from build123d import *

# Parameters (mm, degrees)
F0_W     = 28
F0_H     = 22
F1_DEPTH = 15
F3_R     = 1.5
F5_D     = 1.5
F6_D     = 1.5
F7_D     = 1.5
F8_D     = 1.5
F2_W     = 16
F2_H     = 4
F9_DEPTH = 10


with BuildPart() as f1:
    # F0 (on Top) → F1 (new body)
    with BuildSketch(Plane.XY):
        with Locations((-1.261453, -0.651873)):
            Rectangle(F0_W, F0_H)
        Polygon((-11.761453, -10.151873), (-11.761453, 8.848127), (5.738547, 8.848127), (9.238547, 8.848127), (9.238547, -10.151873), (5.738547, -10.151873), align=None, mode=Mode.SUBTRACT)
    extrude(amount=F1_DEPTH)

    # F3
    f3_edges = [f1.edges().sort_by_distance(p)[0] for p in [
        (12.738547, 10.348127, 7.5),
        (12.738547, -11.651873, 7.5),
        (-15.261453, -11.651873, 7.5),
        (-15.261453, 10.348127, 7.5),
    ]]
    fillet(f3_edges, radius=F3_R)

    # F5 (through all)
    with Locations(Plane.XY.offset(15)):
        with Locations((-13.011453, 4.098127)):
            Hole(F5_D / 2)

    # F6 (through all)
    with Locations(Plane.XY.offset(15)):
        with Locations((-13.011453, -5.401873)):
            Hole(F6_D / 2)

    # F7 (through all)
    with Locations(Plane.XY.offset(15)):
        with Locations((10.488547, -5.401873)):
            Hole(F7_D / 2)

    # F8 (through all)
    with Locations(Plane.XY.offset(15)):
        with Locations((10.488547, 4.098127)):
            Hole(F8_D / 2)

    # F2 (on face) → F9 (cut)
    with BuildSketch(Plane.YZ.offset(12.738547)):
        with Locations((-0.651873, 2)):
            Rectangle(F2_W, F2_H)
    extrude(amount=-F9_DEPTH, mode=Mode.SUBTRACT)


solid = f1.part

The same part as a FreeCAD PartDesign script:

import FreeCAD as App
import Part
import Sketcher
from FreeCAD import Vector
Q = App.Units.Quantity


def edges_at(feature, points):
    """Names of the edges that pass closest to the given points."""
    edges = feature.Shape.Edges
    near = lambda p: min(range(len(edges)), key=lambda i: edges[i].distToShape(Part.Vertex(*p))[0])
    return sorted({f"Edge{near(p) + 1}" for p in points})

doc = App.newDocument("Part")
body = doc.addObject("PartDesign::Body", "Body")

sketch1 = doc.addObject("Sketcher::SketchObject", "Sketch")
body.addObject(sketch1)
sketch1.AttachmentSupport = (doc.XY_Plane, [""])
sketch1.MapMode = "FlatFace"
sketch1.addGeometry([
    Part.LineSegment(Vector(-15, 10, 0), Vector(-15, -12, 0)),
    Part.LineSegment(Vector(-15, -12, 0), Vector(13, -12, 0)),
    Part.LineSegment(Vector(13, -12, 0), Vector(13, 10, 0)),
    Part.LineSegment(Vector(13, 10, 0), Vector(-15, 10, 0)),
    Part.LineSegment(Vector(9, -10, 0), Vector(-12, -10, 0)),
    Part.LineSegment(Vector(-12, -10, 0), Vector(-12, 9, 0)),
    Part.LineSegment(Vector(-12, 9, 0), Vector(9, 9, 0)),
    Part.LineSegment(Vector(9, 9, 0), Vector(9, -10, 0)),
], False)
sketch1.addConstraint([
    Sketcher.Constraint("Coincident", 0, 2, 1, 1),
    Sketcher.Constraint("Coincident", 1, 2, 2, 1),
    Sketcher.Constraint("Coincident", 2, 2, 3, 1),
    Sketcher.Constraint("Coincident", 3, 2, 0, 1),
    Sketcher.Constraint("Coincident", 4, 2, 5, 1),
    Sketcher.Constraint("Coincident", 5, 2, 6, 1),
    Sketcher.Constraint("Coincident", 6, 2, 7, 1),
    Sketcher.Constraint("Coincident", 7, 2, 4, 1),
    Sketcher.Constraint("Vertical", 0),
    Sketcher.Constraint("Horizontal", 1),
    Sketcher.Constraint("Vertical", 2),
    Sketcher.Constraint("Horizontal", 3),
    Sketcher.Constraint("Horizontal", 4),
    Sketcher.Constraint("Vertical", 5),
    Sketcher.Constraint("Horizontal", 6),
    Sketcher.Constraint("Vertical", 7),
    Sketcher.Constraint("DistanceX", 1, 1, 1, 2, Q("28 mm")),
    Sketcher.Constraint("DistanceX", 4, 2, 4, 1, Q("21 mm")),
    Sketcher.Constraint("DistanceY", 0, 2, 0, 1, Q("22 mm")),
    Sketcher.Constraint("DistanceY", 5, 1, 5, 2, Q("19 mm")),
    Sketcher.Constraint("DistanceX", 0, 2, 4, 2, Q("3.5 mm")),
    Sketcher.Constraint("DistanceY", 0, 2, 4, 2, Q("1.5 mm")),
    Sketcher.Constraint("DistanceX", 0, 2, -1, 1, Q("15.261453 mm")),
    Sketcher.Constraint("DistanceY", 0, 2, -1, 1, Q("11.651873 mm")),
])
pad1 = doc.addObject("PartDesign::Pad", "Pad")
body.addObject(pad1)
pad1.Profile = sketch1
pad1.Length = 15
doc.recompute()

fillet = doc.addObject("PartDesign::Fillet", "Fillet")
body.addObject(fillet)
fillet.Base = (pad1, edges_at(pad1, [
    (12.739, 10.348, 7.5),
    (12.739, -11.652, 7.5),
    (-15.261, -11.652, 7.5),
    (-15.261, 10.348, 7.5),
]))
fillet.Radius = 1.5

sketch2 = doc.addObject("Sketcher::SketchObject", "Sketch001")
body.addObject(sketch2)
sketch2.AttachmentSupport = (doc.XY_Plane, [""])
sketch2.MapMode = "FlatFace"
sketch2.AttachmentOffset = App.Placement(Vector(0, 0, 15), App.Rotation())
sketch2.addGeometry(Part.Circle(Vector(-13, 4.1, 0), Vector(0, 0, 1), 0.8), False)
sketch2.addConstraint([
    Sketcher.Constraint("Diameter", 0, Q("1.5 mm")),
    Sketcher.Constraint("DistanceX", 0, 3, -1, 1, Q("13.011453 mm")),
    Sketcher.Constraint("DistanceY", -1, 1, 0, 3, Q("4.098127 mm")),
])
doc.recompute()
hole = doc.addObject("PartDesign::Hole", "Hole")
body.addObject(hole)
hole.Profile = sketch2
hole.ThreadType = "None"
hole.Diameter = 1.5
hole.DepthType = "ThroughAll"

sketch3 = doc.addObject("Sketcher::SketchObject", "Sketch002")
body.addObject(sketch3)
sketch3.AttachmentSupport = (doc.XY_Plane, [""])
sketch3.MapMode = "FlatFace"
sketch3.AttachmentOffset = App.Placement(Vector(0, 0, 15), App.Rotation())
sketch3.addGeometry(Part.Circle(Vector(-13, -5.4, 0), Vector(0, 0, 1), 0.8), False)
sketch3.addConstraint([
    Sketcher.Constraint("Diameter", 0, Q("1.5 mm")),
    Sketcher.Constraint("DistanceX", 0, 3, -1, 1, Q("13.011453 mm")),
    Sketcher.Constraint("DistanceY", 0, 3, -1, 1, Q("5.401873 mm")),
])
doc.recompute()
hole2 = doc.addObject("PartDesign::Hole", "Hole001")
body.addObject(hole2)
hole2.Profile = sketch3
hole2.ThreadType = "None"
hole2.Diameter = 1.5
hole2.DepthType = "ThroughAll"

sketch4 = doc.addObject("Sketcher::SketchObject", "Sketch003")
body.addObject(sketch4)
sketch4.AttachmentSupport = (doc.XY_Plane, [""])
sketch4.MapMode = "FlatFace"
sketch4.AttachmentOffset = App.Placement(Vector(0, 0, 15), App.Rotation())
sketch4.addGeometry(Part.Circle(Vector(10.5, -5.4, 0), Vector(0, 0, 1), 0.8), False)
sketch4.addConstraint([
    Sketcher.Constraint("Diameter", 0, Q("1.5 mm")),
    Sketcher.Constraint("DistanceX", -1, 1, 0, 3, Q("10.488547 mm")),
    Sketcher.Constraint("DistanceY", 0, 3, -1, 1, Q("5.401873 mm")),
])
doc.recompute()
hole3 = doc.addObject("PartDesign::Hole", "Hole002")
body.addObject(hole3)
hole3.Profile = sketch4
hole3.ThreadType = "None"
hole3.Diameter = 1.5
hole3.DepthType = "ThroughAll"

sketch5 = doc.addObject("Sketcher::SketchObject", "Sketch004")
body.addObject(sketch5)
sketch5.AttachmentSupport = (doc.XY_Plane, [""])
sketch5.MapMode = "FlatFace"
sketch5.AttachmentOffset = App.Placement(Vector(0, 0, 15), App.Rotation())
sketch5.addGeometry(Part.Circle(Vector(10.5, 4.1, 0), Vector(0, 0, 1), 0.8), False)
sketch5.addConstraint([
    Sketcher.Constraint("Diameter", 0, Q("1.5 mm")),
    Sketcher.Constraint("DistanceX", -1, 1, 0, 3, Q("10.488547 mm")),
    Sketcher.Constraint("DistanceY", -1, 1, 0, 3, Q("4.098127 mm")),
])
doc.recompute()
hole4 = doc.addObject("PartDesign::Hole", "Hole003")
body.addObject(hole4)
hole4.Profile = sketch5
hole4.ThreadType = "None"
hole4.Diameter = 1.5
hole4.DepthType = "ThroughAll"

sketch6 = doc.addObject("Sketcher::SketchObject", "Sketch005")
body.addObject(sketch6)
sketch6.AttachmentSupport = (doc.YZ_Plane, [""])
sketch6.MapMode = "FlatFace"
sketch6.AttachmentOffset = App.Placement(Vector(0, 0, 12.738547), App.Rotation())
sketch6.addGeometry([
    Part.LineSegment(Vector(-8.7, 4, 0), Vector(-8.7, 0, 0)),
    Part.LineSegment(Vector(-8.7, 0, 0), Vector(7.3, 0, 0)),
    Part.LineSegment(Vector(7.3, 0, 0), Vector(7.3, 4, 0)),
    Part.LineSegment(Vector(7.3, 4, 0), Vector(-8.7, 4, 0)),
], False)
sketch6.addConstraint([
    Sketcher.Constraint("Coincident", 0, 2, 1, 1),
    Sketcher.Constraint("Coincident", 1, 2, 2, 1),
    Sketcher.Constraint("Coincident", 2, 2, 3, 1),
    Sketcher.Constraint("Coincident", 3, 2, 0, 1),
    Sketcher.Constraint("Vertical", 0),
    Sketcher.Constraint("Horizontal", 1),
    Sketcher.Constraint("Vertical", 2),
    Sketcher.Constraint("Horizontal", 3),
    Sketcher.Constraint("PointOnObject", 0, 2, -1),
    Sketcher.Constraint("DistanceX", 1, 1, 1, 2, Q("16 mm")),
    Sketcher.Constraint("DistanceY", 0, 2, 0, 1, Q("4 mm")),
    Sketcher.Constraint("DistanceX", 0, 2, -1, 1, Q("8.651873 mm")),
])
pocket1 = doc.addObject("PartDesign::Pocket", "Pocket")
body.addObject(pocket1)
pocket1.Profile = sketch6
pocket1.Length = 10

doc.recompute()
